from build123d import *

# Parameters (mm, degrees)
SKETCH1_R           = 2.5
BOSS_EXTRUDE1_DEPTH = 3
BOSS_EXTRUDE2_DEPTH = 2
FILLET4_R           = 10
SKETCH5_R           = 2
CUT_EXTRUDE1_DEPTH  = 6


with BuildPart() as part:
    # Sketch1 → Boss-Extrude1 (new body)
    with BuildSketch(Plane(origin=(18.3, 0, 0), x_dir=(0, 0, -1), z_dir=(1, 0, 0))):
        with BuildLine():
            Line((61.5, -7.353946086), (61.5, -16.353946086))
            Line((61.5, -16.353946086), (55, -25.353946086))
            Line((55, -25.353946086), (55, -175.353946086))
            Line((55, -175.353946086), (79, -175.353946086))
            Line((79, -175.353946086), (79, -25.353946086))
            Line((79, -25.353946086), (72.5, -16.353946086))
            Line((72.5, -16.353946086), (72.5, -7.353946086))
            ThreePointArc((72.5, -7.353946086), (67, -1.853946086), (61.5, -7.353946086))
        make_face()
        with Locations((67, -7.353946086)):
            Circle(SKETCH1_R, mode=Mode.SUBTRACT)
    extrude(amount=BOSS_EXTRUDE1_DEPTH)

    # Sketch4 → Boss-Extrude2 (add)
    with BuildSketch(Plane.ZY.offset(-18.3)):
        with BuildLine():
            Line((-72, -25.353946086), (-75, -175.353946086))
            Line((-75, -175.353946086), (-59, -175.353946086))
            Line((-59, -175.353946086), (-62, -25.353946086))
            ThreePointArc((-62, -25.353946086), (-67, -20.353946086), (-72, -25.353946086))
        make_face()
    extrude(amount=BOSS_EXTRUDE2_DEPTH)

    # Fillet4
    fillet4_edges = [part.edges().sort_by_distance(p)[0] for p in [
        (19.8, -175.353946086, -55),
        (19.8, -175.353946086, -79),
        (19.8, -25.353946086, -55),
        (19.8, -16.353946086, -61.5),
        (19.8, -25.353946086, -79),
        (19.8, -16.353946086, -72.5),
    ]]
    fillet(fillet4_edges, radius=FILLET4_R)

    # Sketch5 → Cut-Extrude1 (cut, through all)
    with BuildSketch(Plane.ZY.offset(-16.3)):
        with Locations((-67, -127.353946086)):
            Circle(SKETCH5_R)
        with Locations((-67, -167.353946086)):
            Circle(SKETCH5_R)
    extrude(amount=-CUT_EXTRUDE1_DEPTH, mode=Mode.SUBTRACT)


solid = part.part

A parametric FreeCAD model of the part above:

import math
import FreeCAD as App
import Part
import Sketcher

V = App.Vector
Q = App.Units.Quantity


def edges_at(feature, points):
    """Names of the edges that pass closest to the given points."""
    edges = feature.Shape.Edges
    near = lambda p: min(range(len(edges)), key=lambda i: edges[i].distToShape(Part.Vertex(*p))[0])
    return sorted({f"Edge{near(p) + 1}" for p in points})

doc = App.newDocument("Part")
body = doc.addObject("PartDesign::Body", "Body")

sketch1 = body.newObject("Sketcher::SketchObject", "Sketch")
sketch1.AttachmentSupport = (doc.getObject("YZ_Plane"), [""])
sketch1.MapMode = "FlatFace"
sketch1.AttachmentOffset = App.Placement(V(0, 0, 18.3), App.Rotation())
sketch1.addGeometry([
    Part.LineSegment(V(-7.353946, -61.5, 0), V(-16.353946, -61.5, 0)),
    Part.LineSegment(V(-16.353946, -61.5, 0), V(-25.353946, -55, 0)),
    Part.LineSegment(V(-25.353946, -55, 0), V(-175.353946, -55, 0)),
    Part.LineSegment(V(-175.353946, -55, 0), V(-175.353946, -79, 0)),
    Part.LineSegment(V(-175.353946, -79, 0), V(-25.353946, -79, 0)),
    Part.LineSegment(V(-25.353946, -79, 0), V(-16.353946, -72.5, 0)),
    Part.LineSegment(V(-16.353946, -72.5, 0), V(-7.353946, -72.5, 0)),
    Part.ArcOfCircle(Part.Circle(V(-7.353946, -67, 0), V(0, 0, 1), 5.5), math.radians(-90), math.radians(90)),
    Part.Circle(V(-7.353946, -67, 0), V(0, 0, 1), 2.5),
], False)
sketch1.addConstraint([
    Sketcher.Constraint("Coincident", 0, 2, 1, 1),
    Sketcher.Constraint("Coincident", 1, 2, 2, 1),
    Sketcher.Constraint("Coincident", 2, 2, 3, 1),
    Sketcher.Constraint("Coincident", 3, 2, 4, 1),
    Sketcher.Constraint("Coincident", 4, 2, 5, 1),
    Sketcher.Constraint("Coincident", 5, 2, 6, 1),
    Sketcher.Constraint("Tangent", 6, 2, 7, 1),
    Sketcher.Constraint("Tangent", 7, 2, 0, 1),
    Sketcher.Constraint("Horizontal", 0),
    Sketcher.Constraint("Horizontal", 2),
    Sketcher.Constraint("Vertical", 3),
    Sketcher.Constraint("Horizontal", 4),
    Sketcher.Constraint("Horizontal", 6),
    Sketcher.Constraint("Coincident", 8, 3, 7, 3),
    Sketcher.Constraint("Vertical", 1, 2, 4, 2),
    Sketcher.Constraint("Vertical", 0, 2, 5, 2),
    Sketcher.Constraint("Equal", 1, 5),
    Sketcher.Constraint("Diameter", 8, Q("5 mm")),
    Sketcher.Constraint("Radius", 7, Q("5.5 mm")),
    Sketcher.Constraint("DistanceX", 0, 2, 0, 1, Q("9 mm")),
    Sketcher.Constraint("DistanceX", 2, 2, 2, 1, Q("150 mm")),
    Sketcher.Constraint("DistanceY", 3, 2, 3, 1, Q("24 mm")),
    Sketcher.Constraint("DistanceY", 7, 3, -1, 1, Q("67 mm")),
    Sketcher.Constraint("DistanceX", 1, 2, 0, 2, Q("9 mm")),
    Sketcher.Constraint("DistanceX", 7, 3, -1, 1, Q("7.353946 mm")),
])
pad1 = body.newObject("PartDesign::Pad", "Pad")
pad1.Profile = sketch1
pad1.Length = 3

sketch2 = body.newObject("Sketcher::SketchObject", "Sketch001")
sketch2.AttachmentSupport = (doc.getObject("YZ_Plane"), [""])
sketch2.MapMode = "FlatFace"
sketch2.AttachmentOffset = App.Placement(V(0, 0, 18.3), App.Rotation())
sketch2.addGeometry([
    Part.LineSegment(V(-25.353946, -72, 0), V(-175.353946, -75, 0)),
    Part.LineSegment(V(-175.353946, -75, 0), V(-175.353946, -59, 0)),
    Part.LineSegment(V(-175.353946, -59, 0), V(-25.353946, -62, 0)),
    Part.ArcOfCircle(Part.Circle(V(-25.353946, -67, 0), V(0, 0, 1), 5), math.radians(-90), math.radians(90)),
], False)
sketch2.addConstraint([
    Sketcher.Constraint("Coincident", 0, 2, 1, 1),
    Sketcher.Constraint("Coincident", 1, 2, 2, 1),
    Sketcher.Constraint("Coincident", 2, 2, 3, 2),
    Sketcher.Constraint("Coincident", 3, 1, 0, 1),
    Sketcher.Constraint("Vertical", 1),
    Sketcher.Constraint("Vertical", 3, 3, 2, 2),
    Sketcher.Constraint("Vertical", 2, 2, 3, 1),
    Sketcher.Constraint("Equal", 0, 2),
    Sketcher.Constraint("Radius", 3, Q("5 mm")),
    Sketcher.Constraint("DistanceY", 1, 1, 1, 2, Q("16 mm")),
    Sketcher.Constraint("DistanceY", 3, 3, -1, 1, Q("67 mm")),
    Sketcher.Constraint("DistanceX", 0, 2, 3, 3, Q("150 mm")),
    Sketcher.Constraint("DistanceX", 3, 3, -1, 1, Q("25.353946 mm")),
])
pad2 = body.newObject("PartDesign::Pad", "Pad001")
pad2.Profile = sketch2
pad2.Length = 2
pad2.Reversed = True
doc.recompute()

fillet = body.newObject("PartDesign::Fillet", "Fillet")
fillet.Base = (pad2, edges_at(pad2, [
    (19.8, -175.354, -55),
    (19.8, -175.354, -79),
    (19.8, -25.354, -55),
    (19.8, -16.354, -61.5),
    (19.8, -25.354, -79),
    (19.8, -16.354, -72.5),
]))
fillet.Radius = 10

sketch3 = body.newObject("Sketcher::SketchObject", "Sketch002")
sketch3.AttachmentSupport = (doc.getObject("YZ_Plane"), [""])
sketch3.MapMode = "FlatFace"
sketch3.AttachmentOffset = App.Placement(V(0, 0, 16.3), App.Rotation())
sketch3.addGeometry([
    Part.Circle(V(-127.353946, -67, 0), V(0, 0, 1), 2),
    Part.Circle(V(-167.353946, -67, 0), V(0, 0, 1), 2),
], False)
sketch3.addConstraint([
    Sketcher.Constraint("Equal", 0, 1),
    Sketcher.Constraint("Horizontal", 0, 3, 1, 3),
    Sketcher.Constraint("Diameter", 0, Q("4 mm")),
    Sketcher.Constraint("DistanceY", 0, 3, -1, 1, Q("67 mm")),
    Sketcher.Constraint("DistanceX", 1, 3, 0, 3, Q("40 mm")),
    Sketcher.Constraint("DistanceX", 0, 3, -1, 1, Q("127.353946 mm")),
])
pocket1 = body.newObject("PartDesign::Pocket", "Pocket")
pocket1.Profile = sketch3
pocket1.Type = "ThroughAll"
pocket1.Reversed = True

doc.recompute()
